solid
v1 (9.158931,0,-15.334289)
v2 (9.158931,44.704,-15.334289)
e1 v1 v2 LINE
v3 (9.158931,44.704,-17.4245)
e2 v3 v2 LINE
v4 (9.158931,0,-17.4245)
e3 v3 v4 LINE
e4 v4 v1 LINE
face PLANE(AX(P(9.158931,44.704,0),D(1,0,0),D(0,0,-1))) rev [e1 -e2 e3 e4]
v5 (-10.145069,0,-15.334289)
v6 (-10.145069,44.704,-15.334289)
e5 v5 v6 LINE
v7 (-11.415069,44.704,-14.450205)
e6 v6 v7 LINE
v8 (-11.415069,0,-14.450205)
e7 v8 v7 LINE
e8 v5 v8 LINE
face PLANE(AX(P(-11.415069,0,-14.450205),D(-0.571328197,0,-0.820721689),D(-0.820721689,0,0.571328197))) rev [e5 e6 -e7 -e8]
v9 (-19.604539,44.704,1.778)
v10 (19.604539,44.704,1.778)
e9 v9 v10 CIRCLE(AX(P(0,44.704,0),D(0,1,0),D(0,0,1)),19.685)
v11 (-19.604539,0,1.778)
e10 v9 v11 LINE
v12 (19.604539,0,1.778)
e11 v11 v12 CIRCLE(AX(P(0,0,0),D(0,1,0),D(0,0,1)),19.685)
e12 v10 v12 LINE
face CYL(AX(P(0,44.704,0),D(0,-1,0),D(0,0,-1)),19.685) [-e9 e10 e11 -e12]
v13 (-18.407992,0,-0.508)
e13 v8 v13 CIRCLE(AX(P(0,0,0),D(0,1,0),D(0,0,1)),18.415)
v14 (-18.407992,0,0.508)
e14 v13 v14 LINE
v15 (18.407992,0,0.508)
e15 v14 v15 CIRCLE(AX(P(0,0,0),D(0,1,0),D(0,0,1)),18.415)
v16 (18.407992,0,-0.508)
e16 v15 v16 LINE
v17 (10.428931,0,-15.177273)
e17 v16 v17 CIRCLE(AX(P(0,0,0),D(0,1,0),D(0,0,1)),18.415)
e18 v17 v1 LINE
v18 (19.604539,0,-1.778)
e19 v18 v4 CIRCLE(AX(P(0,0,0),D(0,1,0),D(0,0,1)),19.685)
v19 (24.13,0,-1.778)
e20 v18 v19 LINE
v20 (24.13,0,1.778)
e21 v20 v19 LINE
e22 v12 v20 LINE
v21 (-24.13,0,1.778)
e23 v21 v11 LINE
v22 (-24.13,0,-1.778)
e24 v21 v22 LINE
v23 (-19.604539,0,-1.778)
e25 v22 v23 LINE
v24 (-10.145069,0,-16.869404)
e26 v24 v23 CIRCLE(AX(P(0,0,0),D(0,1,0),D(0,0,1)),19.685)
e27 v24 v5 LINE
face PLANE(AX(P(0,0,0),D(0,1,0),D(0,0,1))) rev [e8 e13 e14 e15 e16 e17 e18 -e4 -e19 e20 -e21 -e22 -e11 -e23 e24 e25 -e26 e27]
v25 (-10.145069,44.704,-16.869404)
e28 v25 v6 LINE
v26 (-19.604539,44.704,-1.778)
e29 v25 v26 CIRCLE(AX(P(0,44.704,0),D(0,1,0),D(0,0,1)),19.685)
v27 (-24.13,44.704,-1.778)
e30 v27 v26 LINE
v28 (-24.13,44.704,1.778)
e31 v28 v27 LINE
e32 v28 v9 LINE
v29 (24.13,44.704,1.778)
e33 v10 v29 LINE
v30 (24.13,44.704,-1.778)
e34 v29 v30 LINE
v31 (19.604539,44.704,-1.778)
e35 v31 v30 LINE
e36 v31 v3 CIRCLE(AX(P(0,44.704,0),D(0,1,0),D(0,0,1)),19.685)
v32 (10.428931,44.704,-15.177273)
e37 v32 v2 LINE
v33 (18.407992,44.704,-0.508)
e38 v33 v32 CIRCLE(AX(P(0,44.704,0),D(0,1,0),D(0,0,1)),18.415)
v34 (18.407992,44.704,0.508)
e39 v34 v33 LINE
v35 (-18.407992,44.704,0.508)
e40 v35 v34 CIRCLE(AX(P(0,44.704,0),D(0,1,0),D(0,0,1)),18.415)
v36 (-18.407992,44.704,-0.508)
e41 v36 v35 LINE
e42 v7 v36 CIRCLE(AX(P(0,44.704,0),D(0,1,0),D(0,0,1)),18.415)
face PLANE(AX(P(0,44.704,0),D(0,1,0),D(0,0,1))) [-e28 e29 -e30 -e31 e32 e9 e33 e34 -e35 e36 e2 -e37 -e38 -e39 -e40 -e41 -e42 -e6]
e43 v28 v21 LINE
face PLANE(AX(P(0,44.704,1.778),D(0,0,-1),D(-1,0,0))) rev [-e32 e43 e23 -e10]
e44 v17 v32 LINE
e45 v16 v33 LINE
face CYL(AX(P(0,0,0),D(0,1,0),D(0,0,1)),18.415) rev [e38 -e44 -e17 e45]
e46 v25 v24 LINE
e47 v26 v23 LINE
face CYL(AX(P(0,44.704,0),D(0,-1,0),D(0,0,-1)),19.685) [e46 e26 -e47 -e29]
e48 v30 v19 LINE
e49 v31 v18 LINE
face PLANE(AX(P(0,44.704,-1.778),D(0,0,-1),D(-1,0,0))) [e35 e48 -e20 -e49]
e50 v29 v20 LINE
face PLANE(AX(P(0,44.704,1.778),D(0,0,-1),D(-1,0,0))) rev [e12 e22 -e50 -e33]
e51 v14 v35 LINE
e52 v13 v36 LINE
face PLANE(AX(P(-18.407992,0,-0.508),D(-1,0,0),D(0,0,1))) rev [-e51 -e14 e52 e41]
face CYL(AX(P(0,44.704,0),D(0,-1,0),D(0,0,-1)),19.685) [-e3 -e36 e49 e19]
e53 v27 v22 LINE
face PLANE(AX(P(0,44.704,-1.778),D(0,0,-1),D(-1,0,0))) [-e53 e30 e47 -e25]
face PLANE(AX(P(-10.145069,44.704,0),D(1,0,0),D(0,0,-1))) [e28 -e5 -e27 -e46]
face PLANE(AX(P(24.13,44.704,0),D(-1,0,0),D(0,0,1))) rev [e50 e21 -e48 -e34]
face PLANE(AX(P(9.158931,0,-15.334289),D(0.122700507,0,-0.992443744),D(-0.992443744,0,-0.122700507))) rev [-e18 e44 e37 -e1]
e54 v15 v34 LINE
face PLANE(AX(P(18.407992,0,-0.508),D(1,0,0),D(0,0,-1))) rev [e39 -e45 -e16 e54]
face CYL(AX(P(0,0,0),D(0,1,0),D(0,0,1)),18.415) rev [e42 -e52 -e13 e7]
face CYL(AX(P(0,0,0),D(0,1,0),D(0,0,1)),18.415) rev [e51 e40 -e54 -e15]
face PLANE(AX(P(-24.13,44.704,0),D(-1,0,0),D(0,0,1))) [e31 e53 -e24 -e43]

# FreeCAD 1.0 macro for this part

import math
import FreeCAD as App
import Part
import Sketcher
from FreeCAD import Vector
Q = App.Units.Quantity

doc = App.newDocument("Part")
body = doc.addObject("PartDesign::Body", "Body")

# Sketch on XZ plane
sketch1 = body.newObject("Sketcher::SketchObject", "Sketch")
sketch1.AttachmentSupport = (doc.getObject("XZ_Plane"), [""])
sketch1.MapMode = "FlatFace"
sketch1.addGeometry(Part.ArcOfCircle(Part.Circle(Vector(0, 0, 0), Vector(0, 0, 1), 19.7), math.radians(5), math.radians(175)), False)
sketch1.addGeometry(Part.LineSegment(Vector(19.6, 1.8, 0), Vector(24.1, 1.8, 0)), False)
sketch1.addGeometry(Part.LineSegment(Vector(24.1, 1.8, 0), Vector(24.1, -1.8, 0)), False)
sketch1.addGeometry(Part.LineSegment(Vector(24.1, -1.8, 0), Vector(19.6, -1.8, 0)), False)
sketch1.addGeometry(Part.ArcOfCircle(Part.Circle(Vector(0, 0, 0), Vector(0, 0, 1), 19.7), math.radians(-62), math.radians(-5)), False)
sketch1.addGeometry(Part.LineSegment(Vector(9.2, -17.4, 0), Vector(9.2, -11.6, 0)), False)
sketch1.addGeometry(Part.LineSegment(Vector(9.2, -11.6, 0), Vector(-10.1, -11.6, 0)), False)
sketch1.addGeometry(Part.LineSegment(Vector(-10.1, -11.6, 0), Vector(-10.1, -16.9, 0)), False)
sketch1.addGeometry(Part.ArcOfCircle(Part.Circle(Vector(0, 0, 0), Vector(0, 0, 1), 19.7), math.radians(-175), math.radians(-121)), False)
sketch1.addGeometry(Part.LineSegment(Vector(-19.6, -1.8, 0), Vector(-24.1, -1.8, 0)), False)
sketch1.addGeometry(Part.LineSegment(Vector(-24.1, -1.8, 0), Vector(-24.1, 1.8, 0)), False)
sketch1.addGeometry(Part.LineSegment(Vector(-24.1, 1.8, 0), Vector(-19.6, 1.8, 0)), False)
sketch1.addConstraint(Sketcher.Constraint("Coincident", 0, 1, 1, 1))
sketch1.addConstraint(Sketcher.Constraint("Coincident", 1, 2, 2, 1))
sketch1.addConstraint(Sketcher.Constraint("Coincident", 2, 2, 3, 1))
sketch1.addConstraint(Sketcher.Constraint("Coincident", 3, 2, 4, 2))
sketch1.addConstraint(Sketcher.Constraint("Coincident", 4, 1, 5, 1))
sketch1.addConstraint(Sketcher.Constraint("Coincident", 5, 2, 6, 1))
sketch1.addConstraint(Sketcher.Constraint("Coincident", 6, 2, 7, 1))
sketch1.addConstraint(Sketcher.Constraint("Coincident", 7, 2, 8, 2))
sketch1.addConstraint(Sketcher.Constraint("Coincident", 8, 1, 9, 1))
sketch1.addConstraint(Sketcher.Constraint("Coincident", 9, 2, 10, 1))
sketch1.addConstraint(Sketcher.Constraint("Coincident", 10, 2, 11, 1))
sketch1.addConstraint(Sketcher.Constraint("Coincident", 11, 2, 0, 2))
sketch1.addConstraint(Sketcher.Constraint("Horizontal", 1))
sketch1.addConstraint(Sketcher.Constraint("Vertical", 2))
sketch1.addConstraint(Sketcher.Constraint("Horizontal", 3))
sketch1.addConstraint(Sketcher.Constraint("Vertical", 5))
sketch1.addConstraint(Sketcher.Constraint("Horizontal", 6))
sketch1.addConstraint(Sketcher.Constraint("Vertical", 7))
sketch1.addConstraint(Sketcher.Constraint("Horizontal", 9))
sketch1.addConstraint(Sketcher.Constraint("Vertical", 10))
sketch1.addConstraint(Sketcher.Constraint("Horizontal", 11))
sketch1.addConstraint(Sketcher.Constraint("Coincident", 0, 3, -1, 1))
sketch1.addConstraint(Sketcher.Constraint("Coincident", 4, 3, -1, 1))
sketch1.addConstraint(Sketcher.Constraint("Coincident", 8, 3, -1, 1))
sketch1.addConstraint(Sketcher.Constraint("Equal", 0, 4))
sketch1.addConstraint(Sketcher.Constraint("Equal", 4, 8))
sketch1.addConstraint(Sketcher.Constraint("Symmetric", 1, 2, 9, 2, -1, 1))
sketch1.addConstraint(Sketcher.Constraint("Horizontal", 3, 2, 8, 1))
sketch1.addConstraint(Sketcher.Constraint("Horizontal", 1, 2, 10, 2))
sketch1.addConstraint(Sketcher.Constraint("Radius", 0, Q("0.775 in")))
sketch1.addConstraint(Sketcher.Constraint("DistanceX", 6, 2, 6, 1, Q("0.76 in")))
sketch1.addConstraint(Sketcher.Constraint("DistanceY", 2, 2, 2, 1, Q("0.14 in")))
sketch1.addConstraint(Sketcher.Constraint("DistanceX", -1, 1, 1, 2, Q("0.95 in")))
sketch1.addConstraint(Sketcher.Constraint("DistanceY", 5, 1, 5, 2, 5.86527))
sketch1.addConstraint(Sketcher.Constraint("DistanceY", 4, 1, -1, 1, 17.4245))
pad1 = body.newObject("PartDesign::Pad", "Pad")
pad1.Profile = sketch1
pad1.Length = Q("1.76 in")
pad1.Reversed = True

# Sketch on XZ plane
sketch2 = body.newObject("Sketcher::SketchObject", "Sketch001")
sketch2.AttachmentSupport = (doc.getObject("XZ_Plane"), [""])
sketch2.MapMode = "FlatFace"
sketch2.AttachmentOffset = App.Placement(Vector(0, 0, -1.76 * 25.4), App.Rotation())
sketch2.addGeometry(Part.LineSegment(Vector(-18.4, -0.5, 0), Vector(-18.4, 0.5, 0)), False)
sketch2.addGeometry(Part.ArcOfCircle(Part.Circle(Vector(0, 0, 0), Vector(0, 0, 1), 18.4), math.radians(2), math.radians(178)), False)
sketch2.addGeometry(Part.LineSegment(Vector(18.4, 0.5, 0), Vector(18.4, -0.5, 0)), False)
sketch2.addGeometry(Part.ArcOfCircle(Part.Circle(Vector(0, 0, 0), Vector(0, 0, 1), 18.4), math.radians(-56), math.radians(-2)), False)
sketch2.addGeometry(Part.LineSegment(Vector(10.4, -15.2, 0), Vector(10.4, -10.3, 0)), False)
sketch2.addGeometry(Part.LineSegment(Vector(10.4, -10.3, 0), Vector(-11.4, -10.3, 0)), False)
sketch2.addGeometry(Part.LineSegment(Vector(-11.4, -10.3, 0), Vector(-11.4, -14.5, 0)), False)
sketch2.addGeometry(Part.ArcOfCircle(Part.Circle(Vector(0, 0, 0), Vector(0, 0, 1), 18.4), math.radians(-178), math.radians(-128)), False)
sketch2.addConstraint(Sketcher.Constraint("Coincident", 0, 2, 1, 2))
sketch2.addConstraint(Sketcher.Constraint("Coincident", 1, 1, 2, 1))
sketch2.addConstraint(Sketcher.Constraint("Coincident", 2, 2, 3, 2))
sketch2.addConstraint(Sketcher.Constraint("Coincident", 3, 1, 4, 1))
sketch2.addConstraint(Sketcher.Constraint("Coincident", 4, 2, 5, 1))
sketch2.addConstraint(Sketcher.Constraint("Coincident", 5, 2, 6, 1))
sketch2.addConstraint(Sketcher.Constraint("Coincident", 6, 2, 7, 2))
sketch2.addConstraint(Sketcher.Constraint("Coincident", 7, 1, 0, 1))
sketch2.addConstraint(Sketcher.Constraint("Vertical", 0))
sketch2.addConstraint(Sketcher.Constraint("Vertical", 2))
sketch2.addConstraint(Sketcher.Constraint("Vertical", 4))
sketch2.addConstraint(Sketcher.Constraint("Horizontal", 5))
sketch2.addConstraint(Sketcher.Constraint("Vertical", 6))
sketch2.addConstraint(Sketcher.Constraint("Coincident", 1, 3, -1, 1))
sketch2.addConstraint(Sketcher.Constraint("Coincident", 3, 3, -1, 1))
sketch2.addConstraint(Sketcher.Constraint("Coincident", 7, 3, -1, 1))
sketch2.addConstraint(Sketcher.Constraint("Equal", 1, 3))
sketch2.addConstraint(Sketcher.Constraint("Equal", 3, 7))
sketch2.addConstraint(Sketcher.Constraint("Horizontal", 0, 2, 1, 1))
sketch2.addConstraint(Sketcher.Constraint("Radius", 1, Q("0.725 in")))
sketch2.addConstraint(Sketcher.Constraint("DistanceX", 5, 2, 5, 1, Q("0.86 in")))
sketch2.addConstraint(Sketcher.Constraint("DistanceY", 0, 1, 0, 2, Q("0.04 in")))
sketch2.addConstraint(Sketcher.Constraint("DistanceY", 4, 1, 4, 2, 4.888043))
sketch2.addConstraint(Sketcher.Constraint("DistanceY", 6, 2, 6, 1, 4.160975))
pocket1 = body.newObject("PartDesign::Pocket", "Pocket")
pocket1.Profile = sketch2
pocket1.Type = "ThroughAll"
pocket1.Reversed = True

# Sketch on XZ plane
sketch3 = body.newObject("Sketcher::SketchObject", "Sketch002")
sketch3.AttachmentSupport = (doc.getObject("XZ_Plane"), [""])
sketch3.MapMode = "FlatFace"
sketch3.AttachmentOffset = App.Placement(Vector(0, 0, -1.76 * 25.4), App.Rotation())
sketch3.addGeometry(Part.LineSegment(Vector(-10.1, -15.3, 0), Vector(-11.4, -14.5, 0)), False)
sketch3.addGeometry(Part.LineSegment(Vector(-11.4, -14.5, 0), Vector(-11.4, -10.3, 0)), False)
sketch3.addGeometry(Part.LineSegment(Vector(-11.4, -10.3, 0), Vector(10.4, -10.3, 0)), False)
sketch3.addGeometry(Part.LineSegment(Vector(10.4, -10.3, 0), Vector(10.4, -15.2, 0)), False)
sketch3.addGeometry(Part.LineSegment(Vector(10.4, -15.2, 0), Vector(9.2, -15.3, 0)), False)
sketch3.addGeometry(Part.LineSegment(Vector(9.2, -15.3, 0), Vector(-10.1, -15.3, 0)), False)
sketch3.addConstraint(Sketcher.Constraint("Coincident", 0, 2, 1, 1))
sketch3.addConstraint(Sketcher.Constraint("Coincident", 1, 2, 2, 1))
sketch3.addConstraint(Sketcher.Constraint("Coincident", 2, 2, 3, 1))
sketch3.addConstraint(Sketcher.Constraint("Coincident", 3, 2, 4, 1))
sketch3.addConstraint(Sketcher.Constraint("Coincident", 4, 2, 5, 1))
sketch3.addConstraint(Sketcher.Constraint("Coincident", 5, 2, 0, 1))
sketch3.addConstraint(Sketcher.Constraint("Vertical", 1))
sketch3.addConstraint(Sketcher.Constraint("Horizontal", 2))
sketch3.addConstraint(Sketcher.Constraint("Vertical", 3))
sketch3.addConstraint(Sketcher.Constraint("Horizontal", 5))
sketch3.addConstraint(Sketcher.Constraint("DistanceX", 2, 1, 2, 2, Q("0.86 in")))
sketch3.addConstraint(Sketcher.Constraint("DistanceX", 5, 2, 5, 1, Q("0.76 in")))
sketch3.addConstraint(Sketcher.Constraint("DistanceX", 4, 2, 3, 2, Q("0.05 in")))
sketch3.addConstraint(Sketcher.Constraint("Distance", 0, 1.547419))
sketch3.addConstraint(Sketcher.Constraint("Distance", 4, 1.27967))
sketch3.addConstraint(Sketcher.Constraint("DistanceY", 1, 1, 1, 2, 4.160975))
sketch3.addConstraint(Sketcher.Constraint("DistanceX", 0, 2, -1, 1, 11.415069))
sketch3.addConstraint(Sketcher.Constraint("DistanceY", 1, 2, -1, 1, 10.28923))
pocket2 = body.newObject("PartDesign::Pocket", "Pocket001")
pocket2.Profile = sketch3
pocket2.Type = "ThroughAll"
pocket2.Reversed = True

doc.recompute()
